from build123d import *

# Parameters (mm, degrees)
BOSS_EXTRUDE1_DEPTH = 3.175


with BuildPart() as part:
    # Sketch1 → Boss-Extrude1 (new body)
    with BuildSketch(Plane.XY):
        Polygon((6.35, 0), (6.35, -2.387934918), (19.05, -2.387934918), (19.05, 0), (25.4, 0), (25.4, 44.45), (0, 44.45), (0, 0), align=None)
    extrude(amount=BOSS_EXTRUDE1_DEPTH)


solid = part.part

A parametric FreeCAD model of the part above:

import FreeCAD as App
import Part
import Sketcher
from FreeCAD import Vector
Q = App.Units.Quantity

doc = App.newDocument("Part")
body = doc.addObject("PartDesign::Body", "Body")

# Sketch on XY plane
sketch1 = body.newObject("Sketcher::SketchObject", "Sketch")
sketch1.AttachmentSupport = (doc.getObject("XY_Plane"), [""])
sketch1.MapMode = "FlatFace"
sketch1.addGeometry([
    Part.LineSegment(Vector(6.3, 0, 0), Vector(6.3, -2.4, 0)),  # 0
    Part.LineSegment(Vector(6.3, -2.4, 0), Vector(19.1, -2.4, 0)),  # 1
    Part.LineSegment(Vector(19.1, -2.4, 0), Vector(19.1, 0, 0)),  # 2
    Part.LineSegment(Vector(19.1, 0, 0), Vector(25.4, 0, 0)),  # 3
    Part.LineSegment(Vector(25.4, 0, 0), Vector(25.4, 44.5, 0)),  # 4
    Part.LineSegment(Vector(25.4, 44.5, 0), Vector(0, 44.5, 0)),  # 5
    Part.LineSegment(Vector(0, 44.5, 0), Vector(0, 0, 0)),  # 6
    Part.LineSegment(Vector(0, 0, 0), Vector(6.3, 0, 0)),  # 7
], False)
sketch1.addConstraint([
    Sketcher.Constraint("Coincident", 0, 2, 1, 1),
    Sketcher.Constraint("Coincident", 1, 2, 2, 1),
    Sketcher.Constraint("Coincident", 2, 2, 3, 1),
    Sketcher.Constraint("Coincident", 3, 2, 4, 1),
    Sketcher.Constraint("Coincident", 4, 2, 5, 1),
    Sketcher.Constraint("Coincident", 5, 2, 6, 1),
    Sketcher.Constraint("Coincident", 6, 2, 7, 1),
    Sketcher.Constraint("Coincident", 7, 2, 0, 1),
    Sketcher.Constraint("Vertical", 0),
    Sketcher.Constraint("Horizontal", 1),
    Sketcher.Constraint("Vertical", 2),
    Sketcher.Constraint("Horizontal", 3),
    Sketcher.Constraint("Vertical", 4),
    Sketcher.Constraint("Horizontal", 5),
    Sketcher.Constraint("Vertical", 6),
    Sketcher.Constraint("Horizontal", 7),
    Sketcher.Constraint("Coincident", 6, 2, -1, 1),
    Sketcher.Constraint("PointOnObject", 2, 2, -1),
    Sketcher.Constraint("Equal", 3, 7),
    Sketcher.Constraint("DistanceX", 5, 2, 5, 1, Q("1 in")),
    Sketcher.Constraint("DistanceX", 1, 1, 1, 2, Q("0.5 in")),
    Sketcher.Constraint("DistanceY", 4, 1, 4, 2, Q("1.75 in")),
    Sketcher.Constraint("DistanceY", 0, 2, 0, 1, Q("2.387935 mm")),
])
pad1 = body.newObject("PartDesign::Pad", "Pad")
pad1.Profile = sketch1
pad1.Length = Q("0.125 in")

doc.recompute()
